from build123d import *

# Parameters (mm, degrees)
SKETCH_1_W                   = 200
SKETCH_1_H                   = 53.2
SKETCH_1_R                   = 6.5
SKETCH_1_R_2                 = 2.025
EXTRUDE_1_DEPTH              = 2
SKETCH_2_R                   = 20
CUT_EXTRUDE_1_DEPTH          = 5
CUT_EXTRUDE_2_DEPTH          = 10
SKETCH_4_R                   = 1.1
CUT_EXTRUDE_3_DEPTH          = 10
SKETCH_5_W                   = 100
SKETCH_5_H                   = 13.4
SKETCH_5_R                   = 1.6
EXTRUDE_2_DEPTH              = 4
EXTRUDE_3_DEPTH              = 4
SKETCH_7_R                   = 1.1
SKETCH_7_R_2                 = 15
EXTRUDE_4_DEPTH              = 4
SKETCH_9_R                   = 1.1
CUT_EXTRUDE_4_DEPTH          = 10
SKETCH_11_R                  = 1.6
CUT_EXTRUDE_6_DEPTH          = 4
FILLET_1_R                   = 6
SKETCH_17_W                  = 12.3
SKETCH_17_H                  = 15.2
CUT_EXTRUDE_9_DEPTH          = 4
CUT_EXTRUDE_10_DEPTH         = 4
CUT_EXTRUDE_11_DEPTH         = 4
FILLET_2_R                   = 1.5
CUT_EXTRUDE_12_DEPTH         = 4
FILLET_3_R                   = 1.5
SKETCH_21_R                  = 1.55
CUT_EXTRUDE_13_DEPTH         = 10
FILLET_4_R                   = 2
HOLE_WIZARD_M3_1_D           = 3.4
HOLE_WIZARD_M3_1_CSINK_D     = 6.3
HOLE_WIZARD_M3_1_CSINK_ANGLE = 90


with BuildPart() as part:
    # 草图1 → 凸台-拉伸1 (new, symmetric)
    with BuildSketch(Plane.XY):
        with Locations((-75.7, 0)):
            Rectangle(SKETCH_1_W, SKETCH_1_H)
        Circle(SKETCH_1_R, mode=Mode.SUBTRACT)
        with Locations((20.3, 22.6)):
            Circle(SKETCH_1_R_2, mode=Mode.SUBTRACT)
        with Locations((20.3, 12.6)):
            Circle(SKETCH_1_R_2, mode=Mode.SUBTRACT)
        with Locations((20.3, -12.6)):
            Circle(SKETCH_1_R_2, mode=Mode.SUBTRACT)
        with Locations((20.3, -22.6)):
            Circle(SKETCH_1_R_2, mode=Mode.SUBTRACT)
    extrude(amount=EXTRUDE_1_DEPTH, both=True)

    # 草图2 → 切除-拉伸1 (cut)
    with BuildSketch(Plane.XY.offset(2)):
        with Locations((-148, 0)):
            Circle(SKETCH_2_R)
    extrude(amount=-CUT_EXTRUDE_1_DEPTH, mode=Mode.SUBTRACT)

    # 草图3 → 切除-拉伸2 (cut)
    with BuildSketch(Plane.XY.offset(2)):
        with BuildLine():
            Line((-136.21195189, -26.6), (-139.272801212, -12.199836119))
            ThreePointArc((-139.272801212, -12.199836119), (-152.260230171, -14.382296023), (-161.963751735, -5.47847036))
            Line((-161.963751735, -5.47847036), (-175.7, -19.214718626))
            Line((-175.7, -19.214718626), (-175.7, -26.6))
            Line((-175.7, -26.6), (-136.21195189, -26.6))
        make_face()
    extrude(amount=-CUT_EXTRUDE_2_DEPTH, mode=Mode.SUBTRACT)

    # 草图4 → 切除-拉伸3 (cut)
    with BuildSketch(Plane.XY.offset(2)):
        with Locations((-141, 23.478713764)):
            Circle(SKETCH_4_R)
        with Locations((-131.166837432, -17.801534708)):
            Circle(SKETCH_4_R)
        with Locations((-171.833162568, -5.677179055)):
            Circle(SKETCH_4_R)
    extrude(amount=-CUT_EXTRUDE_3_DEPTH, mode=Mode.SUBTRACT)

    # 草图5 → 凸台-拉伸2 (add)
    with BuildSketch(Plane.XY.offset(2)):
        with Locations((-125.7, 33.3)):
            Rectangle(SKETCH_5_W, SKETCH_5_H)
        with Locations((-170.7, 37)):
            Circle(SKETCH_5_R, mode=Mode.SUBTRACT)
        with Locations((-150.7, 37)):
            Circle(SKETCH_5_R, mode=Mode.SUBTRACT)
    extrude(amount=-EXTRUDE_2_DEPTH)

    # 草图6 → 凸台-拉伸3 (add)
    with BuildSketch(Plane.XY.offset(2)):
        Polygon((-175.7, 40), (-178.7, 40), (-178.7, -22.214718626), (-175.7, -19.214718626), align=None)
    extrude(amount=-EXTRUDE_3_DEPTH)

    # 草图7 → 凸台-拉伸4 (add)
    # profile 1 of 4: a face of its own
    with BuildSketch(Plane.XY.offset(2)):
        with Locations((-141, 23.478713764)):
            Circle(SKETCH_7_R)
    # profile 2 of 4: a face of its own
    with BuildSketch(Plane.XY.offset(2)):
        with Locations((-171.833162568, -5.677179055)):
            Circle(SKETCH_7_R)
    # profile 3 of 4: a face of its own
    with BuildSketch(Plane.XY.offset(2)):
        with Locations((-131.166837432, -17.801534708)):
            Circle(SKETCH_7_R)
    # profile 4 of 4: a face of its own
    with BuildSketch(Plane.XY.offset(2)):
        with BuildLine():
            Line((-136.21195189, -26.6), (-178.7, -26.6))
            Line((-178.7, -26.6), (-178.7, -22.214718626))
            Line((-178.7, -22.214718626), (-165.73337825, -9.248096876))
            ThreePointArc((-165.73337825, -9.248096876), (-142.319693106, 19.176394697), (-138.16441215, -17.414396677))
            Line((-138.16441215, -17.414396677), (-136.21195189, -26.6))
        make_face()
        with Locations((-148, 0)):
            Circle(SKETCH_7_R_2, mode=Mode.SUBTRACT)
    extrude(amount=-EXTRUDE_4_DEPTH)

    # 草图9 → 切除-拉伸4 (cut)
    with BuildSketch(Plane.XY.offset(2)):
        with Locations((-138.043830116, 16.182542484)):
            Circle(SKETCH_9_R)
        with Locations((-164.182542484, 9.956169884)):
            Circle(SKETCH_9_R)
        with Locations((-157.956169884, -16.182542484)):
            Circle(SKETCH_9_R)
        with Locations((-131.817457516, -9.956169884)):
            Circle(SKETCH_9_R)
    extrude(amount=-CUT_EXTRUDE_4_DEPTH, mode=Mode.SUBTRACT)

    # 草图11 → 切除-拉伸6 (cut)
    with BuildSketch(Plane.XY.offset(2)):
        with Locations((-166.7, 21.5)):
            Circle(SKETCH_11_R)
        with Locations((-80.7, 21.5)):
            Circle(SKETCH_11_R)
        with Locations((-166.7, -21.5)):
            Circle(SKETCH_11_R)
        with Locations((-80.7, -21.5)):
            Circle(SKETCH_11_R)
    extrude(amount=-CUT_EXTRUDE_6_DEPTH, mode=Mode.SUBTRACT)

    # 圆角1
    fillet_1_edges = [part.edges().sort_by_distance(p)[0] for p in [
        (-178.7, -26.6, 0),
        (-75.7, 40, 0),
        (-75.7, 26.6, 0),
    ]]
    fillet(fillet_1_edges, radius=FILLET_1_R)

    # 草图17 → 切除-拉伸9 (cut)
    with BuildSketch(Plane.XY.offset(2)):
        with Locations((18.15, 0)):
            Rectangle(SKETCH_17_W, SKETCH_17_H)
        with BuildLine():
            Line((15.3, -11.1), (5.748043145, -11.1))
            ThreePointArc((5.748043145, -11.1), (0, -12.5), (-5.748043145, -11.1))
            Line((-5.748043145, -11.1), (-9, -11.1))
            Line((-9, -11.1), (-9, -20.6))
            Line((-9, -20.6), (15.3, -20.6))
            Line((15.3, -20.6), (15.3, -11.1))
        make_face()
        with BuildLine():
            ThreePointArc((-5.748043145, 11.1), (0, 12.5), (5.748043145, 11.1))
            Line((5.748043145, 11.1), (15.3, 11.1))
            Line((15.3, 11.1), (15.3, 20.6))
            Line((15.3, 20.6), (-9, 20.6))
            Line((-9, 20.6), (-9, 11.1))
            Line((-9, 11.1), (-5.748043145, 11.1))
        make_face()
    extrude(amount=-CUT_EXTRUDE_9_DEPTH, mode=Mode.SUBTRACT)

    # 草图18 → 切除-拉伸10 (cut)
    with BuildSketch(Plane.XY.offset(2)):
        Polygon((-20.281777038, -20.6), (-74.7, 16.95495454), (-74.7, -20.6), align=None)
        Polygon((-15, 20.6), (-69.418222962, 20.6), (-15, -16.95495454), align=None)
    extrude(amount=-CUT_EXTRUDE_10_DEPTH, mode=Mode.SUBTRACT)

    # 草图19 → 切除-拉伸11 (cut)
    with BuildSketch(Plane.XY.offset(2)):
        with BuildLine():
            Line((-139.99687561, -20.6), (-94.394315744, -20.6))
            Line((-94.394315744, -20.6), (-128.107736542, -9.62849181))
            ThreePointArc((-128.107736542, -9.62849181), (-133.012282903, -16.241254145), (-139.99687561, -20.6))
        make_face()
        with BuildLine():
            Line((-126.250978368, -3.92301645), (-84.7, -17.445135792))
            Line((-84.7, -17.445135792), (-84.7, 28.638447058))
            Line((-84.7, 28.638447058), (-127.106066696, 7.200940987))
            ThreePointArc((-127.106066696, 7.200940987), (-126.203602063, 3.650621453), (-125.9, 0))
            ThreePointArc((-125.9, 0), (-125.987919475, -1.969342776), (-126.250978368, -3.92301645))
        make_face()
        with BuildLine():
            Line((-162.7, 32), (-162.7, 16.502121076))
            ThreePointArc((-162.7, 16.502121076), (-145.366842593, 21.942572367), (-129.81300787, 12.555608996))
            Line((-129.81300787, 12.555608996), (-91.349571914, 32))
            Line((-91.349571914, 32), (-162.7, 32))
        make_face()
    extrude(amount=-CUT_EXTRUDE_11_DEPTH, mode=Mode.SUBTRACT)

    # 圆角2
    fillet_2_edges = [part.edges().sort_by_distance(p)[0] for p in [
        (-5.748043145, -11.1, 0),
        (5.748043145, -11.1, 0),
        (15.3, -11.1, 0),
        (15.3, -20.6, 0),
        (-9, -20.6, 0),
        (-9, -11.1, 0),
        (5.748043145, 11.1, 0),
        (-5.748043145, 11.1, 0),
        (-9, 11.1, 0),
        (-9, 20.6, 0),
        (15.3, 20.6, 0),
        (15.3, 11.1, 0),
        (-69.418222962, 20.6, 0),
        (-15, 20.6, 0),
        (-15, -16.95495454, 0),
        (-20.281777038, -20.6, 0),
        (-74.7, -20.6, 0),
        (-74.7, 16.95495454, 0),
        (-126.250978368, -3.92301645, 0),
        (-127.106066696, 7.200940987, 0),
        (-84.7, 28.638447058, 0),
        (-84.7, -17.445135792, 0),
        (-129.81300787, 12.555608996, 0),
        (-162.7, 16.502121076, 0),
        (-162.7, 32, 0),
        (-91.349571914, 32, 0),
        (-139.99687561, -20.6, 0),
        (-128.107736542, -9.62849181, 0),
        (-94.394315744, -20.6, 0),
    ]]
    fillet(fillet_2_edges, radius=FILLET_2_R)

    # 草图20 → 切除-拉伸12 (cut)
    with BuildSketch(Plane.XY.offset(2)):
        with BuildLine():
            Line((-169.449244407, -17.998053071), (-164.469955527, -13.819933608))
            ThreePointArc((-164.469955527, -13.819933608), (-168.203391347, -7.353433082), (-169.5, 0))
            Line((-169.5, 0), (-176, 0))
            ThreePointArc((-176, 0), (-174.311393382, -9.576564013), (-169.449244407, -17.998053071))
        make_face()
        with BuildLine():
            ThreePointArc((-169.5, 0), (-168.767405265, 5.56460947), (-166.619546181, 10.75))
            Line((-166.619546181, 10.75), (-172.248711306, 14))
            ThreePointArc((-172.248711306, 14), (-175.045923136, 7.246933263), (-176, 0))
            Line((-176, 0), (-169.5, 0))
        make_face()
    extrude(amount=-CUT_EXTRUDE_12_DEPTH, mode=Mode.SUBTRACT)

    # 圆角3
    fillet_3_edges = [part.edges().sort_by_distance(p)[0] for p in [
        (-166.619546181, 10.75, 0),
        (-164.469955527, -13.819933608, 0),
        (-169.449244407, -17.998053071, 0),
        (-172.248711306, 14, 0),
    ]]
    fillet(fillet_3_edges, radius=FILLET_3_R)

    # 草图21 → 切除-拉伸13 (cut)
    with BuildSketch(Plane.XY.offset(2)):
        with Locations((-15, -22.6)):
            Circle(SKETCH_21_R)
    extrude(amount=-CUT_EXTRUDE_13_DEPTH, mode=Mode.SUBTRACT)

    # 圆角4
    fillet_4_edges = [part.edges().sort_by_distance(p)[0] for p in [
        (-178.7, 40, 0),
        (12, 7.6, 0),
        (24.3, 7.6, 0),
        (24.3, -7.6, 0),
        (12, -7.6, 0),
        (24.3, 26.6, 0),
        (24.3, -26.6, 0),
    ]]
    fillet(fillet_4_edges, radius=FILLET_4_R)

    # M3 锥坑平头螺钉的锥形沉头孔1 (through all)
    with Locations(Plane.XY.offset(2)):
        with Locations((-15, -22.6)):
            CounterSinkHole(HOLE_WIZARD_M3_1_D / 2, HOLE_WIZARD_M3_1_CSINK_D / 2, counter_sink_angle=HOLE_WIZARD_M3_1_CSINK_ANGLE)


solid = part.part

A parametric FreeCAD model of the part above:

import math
import FreeCAD as App
import Part
import Sketcher
from FreeCAD import Vector
Q = App.Units.Quantity


def edges_at(feature, points):
    """Names of the edges that pass closest to the given points."""
    edges = feature.Shape.Edges
    near = lambda p: min(range(len(edges)), key=lambda i: edges[i].distToShape(Part.Vertex(*p))[0])
    return sorted({f"Edge{near(p) + 1}" for p in points})


def add_polygon(sketch, points):
    """Adds a closed chain of lines whose ends are joined by coincident constraints."""
    first, n = sketch.GeometryCount, len(points)
    for a, b in zip(points, points[1:] + points[:1]):
        sketch.addGeometry(Part.LineSegment(App.Vector(*a, 0), App.Vector(*b, 0)), False)
    for i in range(n):
        sketch.addConstraint(Sketcher.Constraint("Coincident", first + i, 2, first + (i + 1) % n, 1))

doc = App.newDocument("Part")
body = doc.addObject("PartDesign::Body", "Body")

sketch1 = body.newObject("Sketcher::SketchObject", "Sketch")
sketch1.AttachmentSupport = (doc.getObject("XY_Plane"), [""])
sketch1.MapMode = "FlatFace"
add_polygon(sketch1, [(-175.7, 26.6), (-175.7, -26.6), (24.3, -26.6), (24.3, 26.6)])
sketch1.addGeometry(Part.Circle(Vector(20.3, -22.6, 0), Vector(0, 0, 1), 2), False)
sketch1.addGeometry(Part.Circle(Vector(20.3, -12.6, 0), Vector(0, 0, 1), 2), False)
sketch1.addGeometry(Part.Circle(Vector(0, 0, 0), Vector(0, 0, 1), 6.5), False)
sketch1.addGeometry(Part.Circle(Vector(20.3, 12.6, 0), Vector(0, 0, 1), 2), False)
sketch1.addGeometry(Part.Circle(Vector(20.3, 22.6, 0), Vector(0, 0, 1), 2), False)
sketch1.addConstraint(Sketcher.Constraint("Vertical", 0))
sketch1.addConstraint(Sketcher.Constraint("Horizontal", 1))
sketch1.addConstraint(Sketcher.Constraint("Vertical", 2))
sketch1.addConstraint(Sketcher.Constraint("Horizontal", 3))
sketch1.addConstraint(Sketcher.Constraint("Coincident", 6, 3, -1, 1))
sketch1.addConstraint(Sketcher.Constraint("Equal", 4, 5))
sketch1.addConstraint(Sketcher.Constraint("Equal", 5, 7))
sketch1.addConstraint(Sketcher.Constraint("Equal", 7, 8))
sketch1.addConstraint(Sketcher.Constraint("Symmetric", 5, 3, 7, 3, -1))
sketch1.addConstraint(Sketcher.Constraint("Symmetric", 4, 3, 8, 3, -1))
sketch1.addConstraint(Sketcher.Constraint("Vertical", 4, 3, 5, 3))
sketch1.addConstraint(Sketcher.Constraint("Diameter", 6, Q("13 mm")))
sketch1.addConstraint(Sketcher.Constraint("Diameter", 4, Q("4.05 mm")))
sketch1.addConstraint(Sketcher.Constraint("DistanceX", 1, 1, 1, 2, Q("200 mm")))
sketch1.addConstraint(Sketcher.Constraint("DistanceY", 0, 2, 0, 1, Q("53.2 mm")))
sketch1.addConstraint(Sketcher.Constraint("DistanceY", 4, 3, 5, 3, Q("10 mm")))
sketch1.addConstraint(Sketcher.Constraint("DistanceX", 0, 2, 4, 3, Q("196 mm")))
sketch1.addConstraint(Sketcher.Constraint("DistanceY", 0, 2, 4, 3, Q("4 mm")))
sketch1.addConstraint(Sketcher.Constraint("DistanceY", 8, 3, 2, 2, Q("4 mm")))
sketch1.addConstraint(Sketcher.Constraint("DistanceX", -1, 1, 4, 3, Q("20.3 mm")))
pad1 = body.newObject("PartDesign::Pad", "Pad")
pad1.Profile = sketch1
pad1.Length = 4
pad1.Midplane = True

sketch2 = body.newObject("Sketcher::SketchObject", "Sketch001")
sketch2.AttachmentSupport = (doc.getObject("XY_Plane"), [""])
sketch2.MapMode = "FlatFace"
sketch2.AttachmentOffset = App.Placement(Vector(0, 0, 2), App.Rotation())
sketch2.addGeometry(Part.Circle(Vector(-148, 0, 0), Vector(0, 0, 1), 20), False)
sketch2.addConstraint(Sketcher.Constraint("PointOnObject", 0, 3, -1))
sketch2.addConstraint(Sketcher.Constraint("Diameter", 0, Q("40 mm")))
sketch2.addConstraint(Sketcher.Constraint("DistanceX", 0, 3, -1, 1, Q("148 mm")))
pocket1 = body.newObject("PartDesign::Pocket", "Pocket")
pocket1.Profile = sketch2
pocket1.Length = 5

sketch3 = body.newObject("Sketcher::SketchObject", "Sketch002")
sketch3.AttachmentSupport = (doc.getObject("XY_Plane"), [""])
sketch3.MapMode = "FlatFace"
sketch3.AttachmentOffset = App.Placement(Vector(0, 0, 2), App.Rotation())
sketch3.addGeometry(Part.LineSegment(Vector(-136, -27, 0), Vector(-139, -12, 0)), False)
sketch3.addGeometry(Part.ArcOfCircle(Part.Circle(Vector(-148, 0, 0), Vector(0, 0, 1), 15), math.radians(-159), math.radians(-54)), False)
sketch3.addGeometry(Part.LineSegment(Vector(-162, -5, 0), Vector(-176, -19, 0)), False)
sketch3.addGeometry(Part.LineSegment(Vector(-176, -19, 0), Vector(-176, -27, 0)), False)
sketch3.addGeometry(Part.LineSegment(Vector(-176, -27, 0), Vector(-136, -27, 0)), False)
sketch3.addConstraint(Sketcher.Constraint("Coincident", 0, 2, 1, 2))
sketch3.addConstraint(Sketcher.Constraint("Coincident", 1, 1, 2, 1))
sketch3.addConstraint(Sketcher.Constraint("Coincident", 2, 2, 3, 1))
sketch3.addConstraint(Sketcher.Constraint("Coincident", 3, 2, 4, 1))
sketch3.addConstraint(Sketcher.Constraint("Coincident", 4, 2, 0, 1))
sketch3.addConstraint(Sketcher.Constraint("Vertical", 3))
sketch3.addConstraint(Sketcher.Constraint("Horizontal", 4))
sketch3.addConstraint(Sketcher.Constraint("PointOnObject", 1, 3, -1))
sketch3.addConstraint(Sketcher.Constraint("Radius", 1, Q("15 mm")))
sketch3.addConstraint(Sketcher.Constraint("Angle", 0, Q("102 deg")))
sketch3.addConstraint(Sketcher.Constraint("Angle", 2, Q("-135 deg")))
sketch3.addConstraint(Sketcher.Constraint("DistanceX", 1, 3, -1, 1, Q("148 mm")))
sketch3.addConstraint(Sketcher.Constraint("DistanceX", 2, 2, -1, 1, Q("175.7 mm")))
sketch3.addConstraint(Sketcher.Constraint("DistanceY", 3, 2, -1, 1, Q("26.6 mm")))
sketch3.addConstraint(Sketcher.Constraint("DistanceX", 4, 1, 4, 2, Q("39.488048 mm")))
sketch3.addConstraint(Sketcher.Constraint("DistanceY", 3, 2, 3, 1, Q("7.385281 mm")))
pocket2 = body.newObject("PartDesign::Pocket", "Pocket001")
pocket2.Profile = sketch3
pocket2.Length = 10

sketch4 = body.newObject("Sketcher::SketchObject", "Sketch003")
sketch4.AttachmentSupport = (doc.getObject("XY_Plane"), [""])
sketch4.MapMode = "FlatFace"
sketch4.AttachmentOffset = App.Placement(Vector(0, 0, 2), App.Rotation())
sketch4.addGeometry(Part.Circle(Vector(-141, 23.5, 0), Vector(0, 0, 1), 1.1), False)
sketch4.addGeometry(Part.Circle(Vector(-131.2, -17.8, 0), Vector(0, 0, 1), 1.1), False)
sketch4.addGeometry(Part.Circle(Vector(-171.8, -5.7, 0), Vector(0, 0, 1), 1.1), False)
sketch4.addConstraint(Sketcher.Constraint("Equal", 0, 1))
sketch4.addConstraint(Sketcher.Constraint("Equal", 1, 2))
sketch4.addConstraint(Sketcher.Constraint("Diameter", 0, Q("2.2 mm")))
sketch4.addConstraint(Sketcher.Constraint("DistanceX", 0, 3, -1, 1, Q("141 mm")))
sketch4.addConstraint(Sketcher.Constraint("DistanceY", 2, 3, -1, 1, Q("5.677179 mm")))
sketch4.addConstraint(Sketcher.Constraint("DistanceY", 1, 3, 0, 3, Q("41.280248 mm")))
sketch4.addConstraint(Sketcher.Constraint("DistanceY", -1, 1, 0, 3, Q("23.478714 mm")))
sketch4.addConstraint(Sketcher.Constraint("DistanceX", 1, 3, -1, 1, Q("131.166837 mm")))
sketch4.addConstraint(Sketcher.Constraint("DistanceX", 2, 3, -1, 1, Q("171.833163 mm")))
pocket3 = body.newObject("PartDesign::Pocket", "Pocket002")
pocket3.Profile = sketch4
pocket3.Length = 10

sketch5 = body.newObject("Sketcher::SketchObject", "Sketch004")
sketch5.AttachmentSupport = (doc.getObject("XY_Plane"), [""])
sketch5.MapMode = "FlatFace"
sketch5.AttachmentOffset = App.Placement(Vector(0, 0, 2), App.Rotation())
add_polygon(sketch5, [(-175.7, 40), (-175.7, 26.6), (-75.7, 26.6), (-75.7, 40)])
sketch5.addGeometry(Part.Circle(Vector(-170.7, 37, 0), Vector(0, 0, 1), 1.6), False)
sketch5.addGeometry(Part.Circle(Vector(-150.7, 37, 0), Vector(0, 0, 1), 1.6), False)
sketch5.addConstraint(Sketcher.Constraint("Vertical", 0))
sketch5.addConstraint(Sketcher.Constraint("Horizontal", 1))
sketch5.addConstraint(Sketcher.Constraint("Vertical", 2))
sketch5.addConstraint(Sketcher.Constraint("Horizontal", 3))
sketch5.addConstraint(Sketcher.Constraint("Equal", 4, 5))
sketch5.addConstraint(Sketcher.Constraint("Horizontal", 4, 3, 5, 3))
sketch5.addConstraint(Sketcher.Constraint("Diameter", 4, Q("3.2 mm")))
sketch5.addConstraint(Sketcher.Constraint("DistanceX", 1, 1, 1, 2, Q("100 mm")))
sketch5.addConstraint(Sketcher.Constraint("DistanceY", 0, 2, 0, 1, Q("13.4 mm")))
sketch5.addConstraint(Sketcher.Constraint("DistanceY", -1, 1, 4, 3, Q("37 mm")))
sketch5.addConstraint(Sketcher.Constraint("DistanceY", -1, 1, 2, 2, Q("40 mm")))
sketch5.addConstraint(Sketcher.Constraint("DistanceX", 4, 3, 5, 3, Q("20 mm")))
sketch5.addConstraint(Sketcher.Constraint("DistanceX", 0, 2, 4, 3, Q("5 mm")))
sketch5.addConstraint(Sketcher.Constraint("DistanceX", 4, 3, -1, 1, Q("170.7 mm")))
pad2 = body.newObject("PartDesign::Pad", "Pad001")
pad2.Profile = sketch5
pad2.Length = 4
pad2.Reversed = True

sketch6 = body.newObject("Sketcher::SketchObject", "Sketch005")
sketch6.AttachmentSupport = (doc.getObject("XY_Plane"), [""])
sketch6.MapMode = "FlatFace"
sketch6.AttachmentOffset = App.Placement(Vector(0, 0, 2), App.Rotation())
add_polygon(sketch6, [(-175.7, 40), (-178.7, 40), (-178.7, -22.2), (-175.7, -19.2)])
sketch6.addConstraint(Sketcher.Constraint("Horizontal", 0))
sketch6.addConstraint(Sketcher.Constraint("Vertical", 1))
sketch6.addConstraint(Sketcher.Constraint("Vertical", 3))
sketch6.addConstraint(Sketcher.Constraint("DistanceX", 0, 2, 0, 1, Q("3 mm")))
sketch6.addConstraint(Sketcher.Constraint("Angle", 2, Q("45 deg")))
sketch6.addConstraint(Sketcher.Constraint("DistanceY", -1, 1, 0, 2, Q("40 mm")))
sketch6.addConstraint(Sketcher.Constraint("DistanceX", 0, 2, -1, 1, Q("178.7 mm")))
sketch6.addConstraint(Sketcher.Constraint("DistanceY", 1, 2, 1, 1, Q("62.214719 mm")))
pad3 = body.newObject("PartDesign::Pad", "Pad002")
pad3.Profile = sketch6
pad3.Length = 4
pad3.Reversed = True

sketch7 = body.newObject("Sketcher::SketchObject", "Sketch006")
sketch7.AttachmentSupport = (doc.getObject("XY_Plane"), [""])
sketch7.MapMode = "FlatFace"
sketch7.AttachmentOffset = App.Placement(Vector(0, 0, 2), App.Rotation())
sketch7.addGeometry(Part.Circle(Vector(-141, 23.5, 0), Vector(0, 0, 1), 1.1), False)
sketch7.addGeometry(Part.Circle(Vector(-171.8, -5.7, 0), Vector(0, 0, 1), 1.1), False)
sketch7.addGeometry(Part.Circle(Vector(-131.2, -17.8, 0), Vector(0, 0, 1), 1.1), False)
sketch7.addGeometry(Part.LineSegment(Vector(-178.7, -26.6, 0), Vector(-136.2, -26.6, 0)), False)
sketch7.addGeometry(Part.LineSegment(Vector(-136.2, -26.6, 0), Vector(-138.2, -17.4, 0)), False)
sketch7.addGeometry(Part.ArcOfCircle(Part.Circle(Vector(-148, 0, 0), Vector(0, 0, 1), 20), math.radians(-61), math.radians(208)), False)
sketch7.addGeometry(Part.LineSegment(Vector(-165.7, -9.2, 0), Vector(-178.7, -22.2, 0)), False)
sketch7.addGeometry(Part.LineSegment(Vector(-178.7, -22.2, 0), Vector(-178.7, -26.6, 0)), False)
sketch7.addGeometry(Part.Circle(Vector(-148, 0, 0), Vector(0, 0, 1), 15), False)
sketch7.addConstraint(Sketcher.Constraint("Coincident", 3, 2, 4, 1))
sketch7.addConstraint(Sketcher.Constraint("Coincident", 4, 2, 5, 1))
sketch7.addConstraint(Sketcher.Constraint("Coincident", 5, 2, 6, 1))
sketch7.addConstraint(Sketcher.Constraint("Coincident", 6, 2, 7, 1))
sketch7.addConstraint(Sketcher.Constraint("Coincident", 7, 2, 3, 1))
sketch7.addConstraint(Sketcher.Constraint("Horizontal", 3))
sketch7.addConstraint(Sketcher.Constraint("Vertical", 7))
sketch7.addConstraint(Sketcher.Constraint("Coincident", 8, 3, 5, 3))
sketch7.addConstraint(Sketcher.Constraint("Equal", 0, 1))
sketch7.addConstraint(Sketcher.Constraint("Equal", 1, 2))
sketch7.addConstraint(Sketcher.Constraint("PointOnObject", 5, 3, -1))
sketch7.addConstraint(Sketcher.Constraint("Diameter", 8, Q("30 mm")))
sketch7.addConstraint(Sketcher.Constraint("Radius", 5, Q("20 mm")))
sketch7.addConstraint(Sketcher.Constraint("Diameter", 0, Q("2.2 mm")))
sketch7.addConstraint(Sketcher.Constraint("Angle", 4, Q("102 deg")))
sketch7.addConstraint(Sketcher.Constraint("Angle", 6, Q("-135 deg")))
sketch7.addConstraint(Sketcher.Constraint("DistanceX", 0, 3, -1, 1, Q("141 mm")))
sketch7.addConstraint(Sketcher.Constraint("DistanceX", 5, 3, -1, 1, Q("148 mm")))
sketch7.addConstraint(Sketcher.Constraint("DistanceY", 3, 2, -1, 1, Q("26.6 mm")))
sketch7.addConstraint(Sketcher.Constraint("DistanceX", 6, 2, -1, 1, Q("178.7 mm")))
sketch7.addConstraint(Sketcher.Constraint("DistanceX", 3, 1, 3, 2, Q("42.488048 mm")))
sketch7.addConstraint(Sketcher.Constraint("DistanceY", 7, 2, 7, 1, Q("4.385281 mm")))
sketch7.addConstraint(Sketcher.Constraint("DistanceY", 1, 3, -1, 1, Q("5.677179 mm")))
sketch7.addConstraint(Sketcher.Constraint("DistanceY", 2, 3, 0, 3, Q("41.280248 mm")))
sketch7.addConstraint(Sketcher.Constraint("DistanceX", 1, 3, 3, 2, Q("35.621211 mm")))
sketch7.addConstraint(Sketcher.Constraint("DistanceY", 2, 3, 4, 2, Q("0.387138 mm")))
sketch7.addConstraint(Sketcher.Constraint("DistanceX", 2, 3, -1, 1, Q("131.166837 mm")))
pad4 = body.newObject("PartDesign::Pad", "Pad003")
pad4.Profile = sketch7
pad4.Length = 4
pad4.Reversed = True

sketch8 = body.newObject("Sketcher::SketchObject", "Sketch007")
sketch8.AttachmentSupport = (doc.getObject("XY_Plane"), [""])
sketch8.MapMode = "FlatFace"
sketch8.AttachmentOffset = App.Placement(Vector(0, 0, 2), App.Rotation())
sketch8.addGeometry(Part.Circle(Vector(-138, 16.2, 0), Vector(0, 0, 1), 1.1), False)
sketch8.addGeometry(Part.Circle(Vector(-164.2, 10, 0), Vector(0, 0, 1), 1.1), False)
sketch8.addGeometry(Part.Circle(Vector(-158, -16.2, 0), Vector(0, 0, 1), 1.1), False)
sketch8.addGeometry(Part.Circle(Vector(-131.8, -10, 0), Vector(0, 0, 1), 1.1), False)
sketch8.addConstraint(Sketcher.Constraint("Equal", 0, 1))
sketch8.addConstraint(Sketcher.Constraint("Equal", 1, 2))
sketch8.addConstraint(Sketcher.Constraint("Equal", 2, 3))
sketch8.addConstraint(Sketcher.Constraint("Diameter", 0, Q("2.2 mm")))
sketch8.addConstraint(Sketcher.Constraint("DistanceX", 0, 3, -1, 1, Q("138.04383 mm")))
sketch8.addConstraint(Sketcher.Constraint("DistanceY", -1, 1, 1, 3, Q("9.95617 mm")))
sketch8.addConstraint(Sketcher.Constraint("DistanceX", 2, 3, -1, 1, Q("157.95617 mm")))
sketch8.addConstraint(Sketcher.Constraint("DistanceY", 3, 3, -1, 1, Q("9.95617 mm")))
sketch8.addConstraint(Sketcher.Constraint("DistanceY", -1, 1, 0, 3, Q("16.182542 mm")))
sketch8.addConstraint(Sketcher.Constraint("DistanceX", 1, 3, -1, 1, Q("164.182542 mm")))
sketch8.addConstraint(Sketcher.Constraint("DistanceY", 2, 3, -1, 1, Q("16.182542 mm")))
sketch8.addConstraint(Sketcher.Constraint("DistanceX", 3, 3, -1, 1, Q("131.817458 mm")))
pocket4 = body.newObject("PartDesign::Pocket", "Pocket003")
pocket4.Profile = sketch8
pocket4.Length = 10

sketch9 = body.newObject("Sketcher::SketchObject", "Sketch008")
sketch9.AttachmentSupport = (doc.getObject("XY_Plane"), [""])
sketch9.MapMode = "FlatFace"
sketch9.AttachmentOffset = App.Placement(Vector(0, 0, 2), App.Rotation())
sketch9.addGeometry(Part.Circle(Vector(-166.7, 21.5, 0), Vector(0, 0, 1), 1.6), False)
sketch9.addGeometry(Part.Circle(Vector(-80.7, 21.5, 0), Vector(0, 0, 1), 1.6), False)
sketch9.addGeometry(Part.Circle(Vector(-166.7, -21.5, 0), Vector(0, 0, 1), 1.6), False)
sketch9.addGeometry(Part.Circle(Vector(-80.7, -21.5, 0), Vector(0, 0, 1), 1.6), False)
sketch9.addConstraint(Sketcher.Constraint("Equal", 0, 1))
sketch9.addConstraint(Sketcher.Constraint("Equal", 1, 2))
sketch9.addConstraint(Sketcher.Constraint("Equal", 2, 3))
sketch9.addConstraint(Sketcher.Constraint("Symmetric", 0, 3, 2, 3, -1))
sketch9.addConstraint(Sketcher.Constraint("Symmetric", 1, 3, 3, 3, -1))
sketch9.addConstraint(Sketcher.Constraint("Horizontal", 0, 3, 1, 3))
sketch9.addConstraint(Sketcher.Constraint("Diameter", 0, Q("3.2 mm")))
sketch9.addConstraint(Sketcher.Constraint("DistanceX", 0, 3, 1, 3, Q("86 mm")))
sketch9.addConstraint(Sketcher.Constraint("DistanceY", 2, 3, 0, 3, Q("43 mm")))
sketch9.addConstraint(Sketcher.Constraint("DistanceX", 0, 3, -1, 1, Q("166.7 mm")))
pocket5 = body.newObject("PartDesign::Pocket", "Pocket004")
pocket5.Profile = sketch9
pocket5.Length = 4
doc.recompute()

fillet = body.newObject("PartDesign::Fillet", "Fillet")
fillet.Base = (pocket5, edges_at(pocket5, [(-178.7, -26.6, 0), (-75.7, 40, 0), (-75.7, 26.6, 0)]))
fillet.Radius = 6

sketch10 = body.newObject("Sketcher::SketchObject", "Sketch009")
sketch10.AttachmentSupport = (doc.getObject("XY_Plane"), [""])
sketch10.MapMode = "FlatFace"
sketch10.AttachmentOffset = App.Placement(Vector(0, 0, 2), App.Rotation())
add_polygon(sketch10, [(12, 7.6), (12, -7.6), (24.3, -7.6), (24.3, 7.6)])
sketch10.addGeometry(Part.LineSegment(Vector(15.3, -11.1, 0), Vector(5.7, -11.1, 0)), False)
sketch10.addGeometry(Part.ArcOfCircle(Part.Circle(Vector(0, 0, 0), Vector(0, 0, 1), 12.5), math.radians(-117), math.radians(-63)), False)
sketch10.addGeometry(Part.LineSegment(Vector(-5.7, -11.1, 0), Vector(-9, -11.1, 0)), False)
sketch10.addGeometry(Part.LineSegment(Vector(-9, -11.1, 0), Vector(-9, -20.6, 0)), False)
sketch10.addGeometry(Part.LineSegment(Vector(-9, -20.6, 0), Vector(15.3, -20.6, 0)), False)
sketch10.addGeometry(Part.LineSegment(Vector(15.3, -20.6, 0), Vector(15.3, -11.1, 0)), False)
sketch10.addGeometry(Part.ArcOfCircle(Part.Circle(Vector(0, 0, 0), Vector(0, 0, 1), 12.5), math.radians(63), math.radians(117)), False)
sketch10.addGeometry(Part.LineSegment(Vector(5.7, 11.1, 0), Vector(15.3, 11.1, 0)), False)
sketch10.addGeometry(Part.LineSegment(Vector(15.3, 11.1, 0), Vector(15.3, 20.6, 0)), False)
sketch10.addGeometry(Part.LineSegment(Vector(15.3, 20.6, 0), Vector(-9, 20.6, 0)), False)
sketch10.addGeometry(Part.LineSegment(Vector(-9, 20.6, 0), Vector(-9, 11.1, 0)), False)
sketch10.addGeometry(Part.LineSegment(Vector(-9, 11.1, 0), Vector(-5.7, 11.1, 0)), False)
sketch10.addConstraint(Sketcher.Constraint("Coincident", 4, 2, 5, 2))
sketch10.addConstraint(Sketcher.Constraint("Coincident", 5, 1, 6, 1))
sketch10.addConstraint(Sketcher.Constraint("Coincident", 6, 2, 7, 1))
sketch10.addConstraint(Sketcher.Constraint("Coincident", 7, 2, 8, 1))
sketch10.addConstraint(Sketcher.Constraint("Coincident", 8, 2, 9, 1))
sketch10.addConstraint(Sketcher.Constraint("Coincident", 9, 2, 4, 1))
sketch10.addConstraint(Sketcher.Constraint("Coincident", 10, 1, 11, 1))
sketch10.addConstraint(Sketcher.Constraint("Coincident", 11, 2, 12, 1))
sketch10.addConstraint(Sketcher.Constraint("Coincident", 12, 2, 13, 1))
sketch10.addConstraint(Sketcher.Constraint("Coincident", 13, 2, 14, 1))
sketch10.addConstraint(Sketcher.Constraint("Coincident", 14, 2, 15, 1))
sketch10.addConstraint(Sketcher.Constraint("Coincident", 15, 2, 10, 2))
sketch10.addConstraint(Sketcher.Constraint("Vertical", 0))
sketch10.addConstraint(Sketcher.Constraint("Horizontal", 1))
sketch10.addConstraint(Sketcher.Constraint("Vertical", 2))
sketch10.addConstraint(Sketcher.Constraint("Horizontal", 3))
sketch10.addConstraint(Sketcher.Constraint("Horizontal", 4))
sketch10.addConstraint(Sketcher.Constraint("Horizontal", 6))
sketch10.addConstraint(Sketcher.Constraint("Vertical", 7))
sketch10.addConstraint(Sketcher.Constraint("Horizontal", 8))
sketch10.addConstraint(Sketcher.Constraint("Vertical", 9))
sketch10.addConstraint(Sketcher.Constraint("Horizontal", 11))
sketch10.addConstraint(Sketcher.Constraint("Vertical", 12))
sketch10.addConstraint(Sketcher.Constraint("Horizontal", 13))
sketch10.addConstraint(Sketcher.Constraint("Vertical", 14))
sketch10.addConstraint(Sketcher.Constraint("Horizontal", 15))
sketch10.addConstraint(Sketcher.Constraint("Coincident", 5, 3, -1, 1))
sketch10.addConstraint(Sketcher.Constraint("Coincident", 10, 3, -1, 1))
sketch10.addConstraint(Sketcher.Constraint("Equal", 5, 10))
sketch10.addConstraint(Sketcher.Constraint("Symmetric", 9, 2, 11, 2, -1))
sketch10.addConstraint(Sketcher.Constraint("Symmetric", 7, 2, 13, 2, -1))
sketch10.addConstraint(Sketcher.Constraint("Horizontal", 4, 2, 5, 1))
sketch10.addConstraint(Sketcher.Constraint("Horizontal", 11, 2, 14, 2))
sketch10.addConstraint(Sketcher.Constraint("Radius", 5, Q("12.5 mm")))
sketch10.addConstraint(Sketcher.Constraint("DistanceX", 1, 1, 1, 2, Q("12.3 mm")))
sketch10.addConstraint(Sketcher.Constraint("DistanceX", 8, 1, 8, 2, Q("24.3 mm")))
sketch10.addConstraint(Sketcher.Constraint("DistanceY", 0, 2, 0, 1, Q("15.2 mm")))
sketch10.addConstraint(Sketcher.Constraint("DistanceY", 7, 2, 7, 1, Q("9.5 mm")))
sketch10.addConstraint(Sketcher.Constraint("DistanceX", -1, 1, 0, 2, Q("12 mm")))
sketch10.addConstraint(Sketcher.Constraint("DistanceX", 6, 2, -1, 1, Q("9 mm")))
sketch10.addConstraint(Sketcher.Constraint("DistanceY", 8, 2, 0, 2, Q("13 mm")))
sketch10.addConstraint(Sketcher.Constraint("DistanceY", 3, 2, 12, 2, Q("13 mm")))
pocket6 = body.newObject("PartDesign::Pocket", "Pocket005")
pocket6.Profile = sketch10
pocket6.Length = 4

sketch11 = body.newObject("Sketcher::SketchObject", "Sketch010")
sketch11.AttachmentSupport = (doc.getObject("XY_Plane"), [""])
sketch11.MapMode = "FlatFace"
sketch11.AttachmentOffset = App.Placement(Vector(0, 0, 2), App.Rotation())
add_polygon(sketch11, [(-20, -21), (-75, 17), (-75, -21)])
add_polygon(sketch11, [(-15, 21), (-69, 21), (-15, -17)])
sketch11.addConstraint(Sketcher.Constraint("Vertical", 1))
sketch11.addConstraint(Sketcher.Constraint("Horizontal", 2))
sketch11.addConstraint(Sketcher.Constraint("Horizontal", 3))
sketch11.addConstraint(Sketcher.Constraint("Vertical", 5))
sketch11.addConstraint(Sketcher.Constraint("Parallel", 0, 4))
sketch11.addConstraint(Sketcher.Constraint("Equal", 2, 3))
sketch11.addConstraint(Sketcher.Constraint("DistanceX", 4, 2, -1, 1, Q("15 mm")))
sketch11.addConstraint(Sketcher.Constraint("DistanceX", 0, 2, -1, 1, Q("74.7 mm")))
sketch11.addConstraint(Sketcher.Constraint("DistanceY", 1, 2, -1, 1, Q("20.6 mm")))
sketch11.addConstraint(Sketcher.Constraint("DistanceY", -1, 1, 3, 2, Q("20.6 mm")))
sketch11.addConstraint(Sketcher.Constraint("DistanceX", 2, 1, 2, 2, Q("54.418223 mm")))
sketch11.addConstraint(Sketcher.Constraint("DistanceY", 1, 2, 1, 1, Q("37.554955 mm")))
pocket7 = body.newObject("PartDesign::Pocket", "Pocket006")
pocket7.Profile = sketch11
pocket7.Length = 4

sketch12 = body.newObject("Sketcher::SketchObject", "Sketch011")
sketch12.AttachmentSupport = (doc.getObject("XY_Plane"), [""])
sketch12.MapMode = "FlatFace"
sketch12.AttachmentOffset = App.Placement(Vector(0, 0, 2), App.Rotation())
sketch12.addGeometry(Part.LineSegment(Vector(-140, -20.6, 0), Vector(-94.4, -20.6, 0)), False)
sketch12.addGeometry(Part.LineSegment(Vector(-94.4, -20.6, 0), Vector(-128.1, -9.6, 0)), False)
sketch12.addGeometry(Part.ArcOfCircle(Part.Circle(Vector(-148, 0, 0), Vector(0, 0, 1), 22.1), math.radians(-69), math.radians(-26)), False)
sketch12.addGeometry(Part.LineSegment(Vector(-126.3, -3.9, 0), Vector(-84.7, -17.4, 0)), False)
sketch12.addGeometry(Part.LineSegment(Vector(-84.7, -17.4, 0), Vector(-84.7, 28.6, 0)), False)
sketch12.addGeometry(Part.LineSegment(Vector(-84.7, 28.6, 0), Vector(-127.1, 7.2, 0)), False)
sketch12.addGeometry(Part.ArcOfCircle(Part.Circle(Vector(-148, 0, 0), Vector(0, 0, 1), 22.1), math.radians(0), math.radians(19.02)), False)
sketch12.addGeometry(Part.ArcOfCircle(Part.Circle(Vector(-148, 0, 0), Vector(0, 0, 1), 22.1), math.radians(-10.22), math.radians(0)), False)
sketch12.addGeometry(Part.LineSegment(Vector(-162.7, 32, 0), Vector(-162.7, 16.5, 0)), False)
sketch12.addGeometry(Part.ArcOfCircle(Part.Circle(Vector(-148, 0, 0), Vector(0, 0, 1), 22.1), math.radians(35), math.radians(132)), False)
sketch12.addGeometry(Part.LineSegment(Vector(-129.8, 12.6, 0), Vector(-91.3, 32, 0)), False)
sketch12.addGeometry(Part.LineSegment(Vector(-91.3, 32, 0), Vector(-162.7, 32, 0)), False)
sketch12.addConstraint(Sketcher.Constraint("Coincident", 0, 2, 1, 1))
sketch12.addConstraint(Sketcher.Constraint("Coincident", 1, 2, 2, 2))
sketch12.addConstraint(Sketcher.Constraint("Coincident", 2, 1, 0, 1))
sketch12.addConstraint(Sketcher.Constraint("Coincident", 3, 2, 4, 1))
sketch12.addConstraint(Sketcher.Constraint("Coincident", 4, 2, 5, 1))
sketch12.addConstraint(Sketcher.Constraint("Coincident", 5, 2, 6, 2))
sketch12.addConstraint(Sketcher.Constraint("Tangent", 6, 1, 7, 2))
sketch12.addConstraint(Sketcher.Constraint("Coincident", 7, 1, 3, 1))
sketch12.addConstraint(Sketcher.Constraint("Coincident", 8, 2, 9, 2))
sketch12.addConstraint(Sketcher.Constraint("Coincident", 9, 1, 10, 1))
sketch12.addConstraint(Sketcher.Constraint("Coincident", 10, 2, 11, 1))
sketch12.addConstraint(Sketcher.Constraint("Coincident", 11, 2, 8, 1))
sketch12.addConstraint(Sketcher.Constraint("Horizontal", 0))
sketch12.addConstraint(Sketcher.Constraint("Vertical", 4))
sketch12.addConstraint(Sketcher.Constraint("Vertical", 8))
sketch12.addConstraint(Sketcher.Constraint("Horizontal", 11))
sketch12.addConstraint(Sketcher.Constraint("Coincident", 6, 3, 2, 3))
sketch12.addConstraint(Sketcher.Constraint("Coincident", 9, 3, 2, 3))
sketch12.addConstraint(Sketcher.Constraint("Equal", 2, 6))
sketch12.addConstraint(Sketcher.Constraint("Equal", 6, 7))
sketch12.addConstraint(Sketcher.Constraint("Equal", 7, 9))
sketch12.addConstraint(Sketcher.Constraint("PointOnObject", 2, 3, -1))
sketch12.addConstraint(Sketcher.Constraint("PointOnObject", 6, 1, -1))
sketch12.addConstraint(Sketcher.Constraint("Parallel", 1, 3))
sketch12.addConstraint(Sketcher.Constraint("Parallel", 5, 10))
sketch12.addConstraint(Sketcher.Constraint("Radius", 2, Q("22.1 mm")))
sketch12.addConstraint(Sketcher.Constraint("DistanceX", 2, 3, -1, 1, Q("148 mm")))
sketch12.addConstraint(Sketcher.Constraint("DistanceY", -1, 1, 10, 2, Q("32 mm")))
sketch12.addConstraint(Sketcher.Constraint("DistanceY", 0, 2, -1, 1, Q("20.6 mm")))
sketch12.addConstraint(Sketcher.Constraint("DistanceX", 3, 2, -1, 1, Q("84.7 mm")))
sketch12.addConstraint(Sketcher.Constraint("DistanceX", 8, 2, -1, 1, Q("162.7 mm")))
sketch12.addConstraint(Sketcher.Constraint("Distance", 3, Q("43.695898 mm")))
sketch12.addConstraint(Sketcher.Constraint("DistanceX", 0, 1, 0, 2, Q("45.60256 mm")))
sketch12.addConstraint(Sketcher.Constraint("DistanceX", 11, 2, 11, 1, Q("71.350428 mm")))
sketch12.addConstraint(Sketcher.Constraint("Distance", 10, Q("43.098959 mm")))
sketch12.addConstraint(Sketcher.Constraint("DistanceY", 4, 1, 4, 2, Q("46.083583 mm")))
sketch12.addConstraint(Sketcher.Constraint("DistanceY", 1, 2, -1, 1, Q("9.628492 mm")))
pocket8 = body.newObject("PartDesign::Pocket", "Pocket007")
pocket8.Profile = sketch12
pocket8.Length = 4
doc.recompute()

fillet2 = body.newObject("PartDesign::Fillet", "Fillet001")
fillet2.Base = (pocket8, edges_at(pocket8, [
    (-5.748, -11.1, 0),
    (5.748, -11.1, 0),
    (15.3, -11.1, 0),
    (15.3, -20.6, 0),
    (-9, -20.6, 0),
    (-9, -11.1, 0),
    (5.748, 11.1, 0),
    (-5.748, 11.1, 0),
    (-9, 11.1, 0),
    (-9, 20.6, 0),
    (15.3, 20.6, 0),
    (15.3, 11.1, 0),
    (-69.418, 20.6, 0),
    (-15, 20.6, 0),
    (-15, -16.955, 0),
    (-20.282, -20.6, 0),
    (-74.7, -20.6, 0),
    (-74.7, 16.955, 0),
    (-126.251, -3.923, 0),
    (-127.106, 7.201, 0),
    (-84.7, 28.638, 0),
    (-84.7, -17.445, 0),
    (-129.813, 12.556, 0),
    (-162.7, 16.502, 0),
    (-162.7, 32, 0),
    (-91.35, 32, 0),
    (-139.997, -20.6, 0),
    (-128.108, -9.628, 0),
    (-94.394, -20.6, 0),
]))
fillet2.Radius = 1.5

sketch13 = body.newObject("Sketcher::SketchObject", "Sketch012")
sketch13.AttachmentSupport = (doc.getObject("XY_Plane"), [""])
sketch13.MapMode = "FlatFace"
sketch13.AttachmentOffset = App.Placement(Vector(0, 0, 2), App.Rotation())
sketch13.addGeometry(Part.LineSegment(Vector(-169, -18, 0), Vector(-164, -14, 0)), False)
sketch13.addGeometry(Part.ArcOfCircle(Part.Circle(Vector(-148, 0, 0), Vector(0, 0, 1), 21), math.radians(180), math.radians(220)), False)
sketch13.addGeometry(Part.ArcOfCircle(Part.Circle(Vector(-148, 0, 0), Vector(0, 0, 1), 21), math.radians(150), math.radians(180)), False)
sketch13.addGeometry(Part.LineSegment(Vector(-167, 11, 0), Vector(-172, 14, 0)), False)
sketch13.addGeometry(Part.ArcOfCircle(Part.Circle(Vector(-148, 0, 0), Vector(0, 0, 1), 28), math.radians(150), math.radians(180)), False)
sketch13.addGeometry(Part.ArcOfCircle(Part.Circle(Vector(-148, 0, 0), Vector(0, 0, 1), 28), math.radians(180), math.radians(220)), False)
sketch13.addConstraint(Sketcher.Constraint("Coincident", 0, 2, 1, 2))
sketch13.addConstraint(Sketcher.Constraint("Tangent", 1, 1, 2, 2))
sketch13.addConstraint(Sketcher.Constraint("Coincident", 2, 1, 3, 1))
sketch13.addConstraint(Sketcher.Constraint("Coincident", 3, 2, 4, 1))
sketch13.addConstraint(Sketcher.Constraint("Tangent", 4, 2, 5, 1))
sketch13.addConstraint(Sketcher.Constraint("Coincident", 5, 2, 0, 1))
sketch13.addConstraint(Sketcher.Constraint("Coincident", 4, 3, 1, 3))
sketch13.addConstraint(Sketcher.Constraint("Equal", 1, 2))
sketch13.addConstraint(Sketcher.Constraint("Equal", 4, 5))
sketch13.addConstraint(Sketcher.Constraint("PointOnObject", 1, 3, -1))
sketch13.addConstraint(Sketcher.Constraint("PointOnObject", 1, 1, -1))
sketch13.addConstraint(Sketcher.Constraint("PointOnObject", 4, 2, -1))
sketch13.addConstraint(Sketcher.Constraint("Radius", 4, Q("28 mm")))
sketch13.addConstraint(Sketcher.Constraint("Radius", 1, Q("21.5 mm")))
sketch13.addConstraint(Sketcher.Constraint("Angle", 0, Q("40 deg")))
sketch13.addConstraint(Sketcher.Constraint("Angle", 3, Q("150 deg")))
sketch13.addConstraint(Sketcher.Constraint("DistanceX", 1, 3, -1, 1, Q("148 mm")))
sketch13.addConstraint(Sketcher.Constraint("DistanceY", -1, 1, 3, 2, Q("14 mm")))
sketch13.addConstraint(Sketcher.Constraint("DistanceX", 0, 2, -1, 1, Q("164.469956 mm")))
pocket9 = body.newObject("PartDesign::Pocket", "Pocket008")
pocket9.Profile = sketch13
pocket9.Length = 4
doc.recompute()

fillet3 = body.newObject("PartDesign::Fillet", "Fillet002")
fillet3.Base = (pocket9, edges_at(pocket9, [
    (-166.62, 10.75, 0),
    (-164.47, -13.82, 0),
    (-169.449, -17.998, 0),
    (-172.249, 14, 0),
]))
fillet3.Radius = 1.5

sketch14 = body.newObject("Sketcher::SketchObject", "Sketch013")
sketch14.AttachmentSupport = (doc.getObject("XY_Plane"), [""])
sketch14.MapMode = "FlatFace"
sketch14.AttachmentOffset = App.Placement(Vector(0, 0, 2), App.Rotation())
sketch14.addGeometry(Part.Circle(Vector(-15, -22.6, 0), Vector(0, 0, 1), 1.6), False)
sketch14.addConstraint(Sketcher.Constraint("Diameter", 0, Q("3.1 mm")))
sketch14.addConstraint(Sketcher.Constraint("DistanceX", 0, 3, -1, 1, Q("15 mm")))
sketch14.addConstraint(Sketcher.Constraint("DistanceY", 0, 3, -1, 1, Q("22.6 mm")))
pocket10 = body.newObject("PartDesign::Pocket", "Pocket009")
pocket10.Profile = sketch14
pocket10.Length = 10
doc.recompute()

fillet4 = body.newObject("PartDesign::Fillet", "Fillet003")
fillet4.Base = (pocket10, edges_at(pocket10, [
    (-178.7, 40, 0),
    (12, 7.6, 0),
    (24.3, 7.6, 0),
    (24.3, -7.6, 0),
    (12, -7.6, 0),
    (24.3, 26.6, 0),
    (24.3, -26.6, 0),
]))
fillet4.Radius = 2

sketch15 = body.newObject("Sketcher::SketchObject", "Sketch014")
sketch15.AttachmentSupport = (doc.getObject("XY_Plane"), [""])
sketch15.MapMode = "FlatFace"
sketch15.AttachmentOffset = App.Placement(Vector(0, 0, 2), App.Rotation())
sketch15.addGeometry(Part.Circle(Vector(-15, -22.6, 0), Vector(0, 0, 1), 1.7), False)
sketch15.addConstraint(Sketcher.Constraint("Diameter", 0, Q("3.4 mm")))
sketch15.addConstraint(Sketcher.Constraint("DistanceX", 0, 3, -1, 1, Q("15 mm")))
sketch15.addConstraint(Sketcher.Constraint("DistanceY", 0, 3, -1, 1, Q("22.6 mm")))
doc.recompute()
hole = body.newObject("PartDesign::Hole", "Hole")
hole.Profile = sketch15
hole.ThreadType = "None"
hole.Diameter = 3.4
hole.DepthType = "ThroughAll"
hole.HoleCutType = "Countersink"
hole.HoleCutDiameter = 6.3
hole.HoleCutCountersinkAngle = 90

doc.recompute()
